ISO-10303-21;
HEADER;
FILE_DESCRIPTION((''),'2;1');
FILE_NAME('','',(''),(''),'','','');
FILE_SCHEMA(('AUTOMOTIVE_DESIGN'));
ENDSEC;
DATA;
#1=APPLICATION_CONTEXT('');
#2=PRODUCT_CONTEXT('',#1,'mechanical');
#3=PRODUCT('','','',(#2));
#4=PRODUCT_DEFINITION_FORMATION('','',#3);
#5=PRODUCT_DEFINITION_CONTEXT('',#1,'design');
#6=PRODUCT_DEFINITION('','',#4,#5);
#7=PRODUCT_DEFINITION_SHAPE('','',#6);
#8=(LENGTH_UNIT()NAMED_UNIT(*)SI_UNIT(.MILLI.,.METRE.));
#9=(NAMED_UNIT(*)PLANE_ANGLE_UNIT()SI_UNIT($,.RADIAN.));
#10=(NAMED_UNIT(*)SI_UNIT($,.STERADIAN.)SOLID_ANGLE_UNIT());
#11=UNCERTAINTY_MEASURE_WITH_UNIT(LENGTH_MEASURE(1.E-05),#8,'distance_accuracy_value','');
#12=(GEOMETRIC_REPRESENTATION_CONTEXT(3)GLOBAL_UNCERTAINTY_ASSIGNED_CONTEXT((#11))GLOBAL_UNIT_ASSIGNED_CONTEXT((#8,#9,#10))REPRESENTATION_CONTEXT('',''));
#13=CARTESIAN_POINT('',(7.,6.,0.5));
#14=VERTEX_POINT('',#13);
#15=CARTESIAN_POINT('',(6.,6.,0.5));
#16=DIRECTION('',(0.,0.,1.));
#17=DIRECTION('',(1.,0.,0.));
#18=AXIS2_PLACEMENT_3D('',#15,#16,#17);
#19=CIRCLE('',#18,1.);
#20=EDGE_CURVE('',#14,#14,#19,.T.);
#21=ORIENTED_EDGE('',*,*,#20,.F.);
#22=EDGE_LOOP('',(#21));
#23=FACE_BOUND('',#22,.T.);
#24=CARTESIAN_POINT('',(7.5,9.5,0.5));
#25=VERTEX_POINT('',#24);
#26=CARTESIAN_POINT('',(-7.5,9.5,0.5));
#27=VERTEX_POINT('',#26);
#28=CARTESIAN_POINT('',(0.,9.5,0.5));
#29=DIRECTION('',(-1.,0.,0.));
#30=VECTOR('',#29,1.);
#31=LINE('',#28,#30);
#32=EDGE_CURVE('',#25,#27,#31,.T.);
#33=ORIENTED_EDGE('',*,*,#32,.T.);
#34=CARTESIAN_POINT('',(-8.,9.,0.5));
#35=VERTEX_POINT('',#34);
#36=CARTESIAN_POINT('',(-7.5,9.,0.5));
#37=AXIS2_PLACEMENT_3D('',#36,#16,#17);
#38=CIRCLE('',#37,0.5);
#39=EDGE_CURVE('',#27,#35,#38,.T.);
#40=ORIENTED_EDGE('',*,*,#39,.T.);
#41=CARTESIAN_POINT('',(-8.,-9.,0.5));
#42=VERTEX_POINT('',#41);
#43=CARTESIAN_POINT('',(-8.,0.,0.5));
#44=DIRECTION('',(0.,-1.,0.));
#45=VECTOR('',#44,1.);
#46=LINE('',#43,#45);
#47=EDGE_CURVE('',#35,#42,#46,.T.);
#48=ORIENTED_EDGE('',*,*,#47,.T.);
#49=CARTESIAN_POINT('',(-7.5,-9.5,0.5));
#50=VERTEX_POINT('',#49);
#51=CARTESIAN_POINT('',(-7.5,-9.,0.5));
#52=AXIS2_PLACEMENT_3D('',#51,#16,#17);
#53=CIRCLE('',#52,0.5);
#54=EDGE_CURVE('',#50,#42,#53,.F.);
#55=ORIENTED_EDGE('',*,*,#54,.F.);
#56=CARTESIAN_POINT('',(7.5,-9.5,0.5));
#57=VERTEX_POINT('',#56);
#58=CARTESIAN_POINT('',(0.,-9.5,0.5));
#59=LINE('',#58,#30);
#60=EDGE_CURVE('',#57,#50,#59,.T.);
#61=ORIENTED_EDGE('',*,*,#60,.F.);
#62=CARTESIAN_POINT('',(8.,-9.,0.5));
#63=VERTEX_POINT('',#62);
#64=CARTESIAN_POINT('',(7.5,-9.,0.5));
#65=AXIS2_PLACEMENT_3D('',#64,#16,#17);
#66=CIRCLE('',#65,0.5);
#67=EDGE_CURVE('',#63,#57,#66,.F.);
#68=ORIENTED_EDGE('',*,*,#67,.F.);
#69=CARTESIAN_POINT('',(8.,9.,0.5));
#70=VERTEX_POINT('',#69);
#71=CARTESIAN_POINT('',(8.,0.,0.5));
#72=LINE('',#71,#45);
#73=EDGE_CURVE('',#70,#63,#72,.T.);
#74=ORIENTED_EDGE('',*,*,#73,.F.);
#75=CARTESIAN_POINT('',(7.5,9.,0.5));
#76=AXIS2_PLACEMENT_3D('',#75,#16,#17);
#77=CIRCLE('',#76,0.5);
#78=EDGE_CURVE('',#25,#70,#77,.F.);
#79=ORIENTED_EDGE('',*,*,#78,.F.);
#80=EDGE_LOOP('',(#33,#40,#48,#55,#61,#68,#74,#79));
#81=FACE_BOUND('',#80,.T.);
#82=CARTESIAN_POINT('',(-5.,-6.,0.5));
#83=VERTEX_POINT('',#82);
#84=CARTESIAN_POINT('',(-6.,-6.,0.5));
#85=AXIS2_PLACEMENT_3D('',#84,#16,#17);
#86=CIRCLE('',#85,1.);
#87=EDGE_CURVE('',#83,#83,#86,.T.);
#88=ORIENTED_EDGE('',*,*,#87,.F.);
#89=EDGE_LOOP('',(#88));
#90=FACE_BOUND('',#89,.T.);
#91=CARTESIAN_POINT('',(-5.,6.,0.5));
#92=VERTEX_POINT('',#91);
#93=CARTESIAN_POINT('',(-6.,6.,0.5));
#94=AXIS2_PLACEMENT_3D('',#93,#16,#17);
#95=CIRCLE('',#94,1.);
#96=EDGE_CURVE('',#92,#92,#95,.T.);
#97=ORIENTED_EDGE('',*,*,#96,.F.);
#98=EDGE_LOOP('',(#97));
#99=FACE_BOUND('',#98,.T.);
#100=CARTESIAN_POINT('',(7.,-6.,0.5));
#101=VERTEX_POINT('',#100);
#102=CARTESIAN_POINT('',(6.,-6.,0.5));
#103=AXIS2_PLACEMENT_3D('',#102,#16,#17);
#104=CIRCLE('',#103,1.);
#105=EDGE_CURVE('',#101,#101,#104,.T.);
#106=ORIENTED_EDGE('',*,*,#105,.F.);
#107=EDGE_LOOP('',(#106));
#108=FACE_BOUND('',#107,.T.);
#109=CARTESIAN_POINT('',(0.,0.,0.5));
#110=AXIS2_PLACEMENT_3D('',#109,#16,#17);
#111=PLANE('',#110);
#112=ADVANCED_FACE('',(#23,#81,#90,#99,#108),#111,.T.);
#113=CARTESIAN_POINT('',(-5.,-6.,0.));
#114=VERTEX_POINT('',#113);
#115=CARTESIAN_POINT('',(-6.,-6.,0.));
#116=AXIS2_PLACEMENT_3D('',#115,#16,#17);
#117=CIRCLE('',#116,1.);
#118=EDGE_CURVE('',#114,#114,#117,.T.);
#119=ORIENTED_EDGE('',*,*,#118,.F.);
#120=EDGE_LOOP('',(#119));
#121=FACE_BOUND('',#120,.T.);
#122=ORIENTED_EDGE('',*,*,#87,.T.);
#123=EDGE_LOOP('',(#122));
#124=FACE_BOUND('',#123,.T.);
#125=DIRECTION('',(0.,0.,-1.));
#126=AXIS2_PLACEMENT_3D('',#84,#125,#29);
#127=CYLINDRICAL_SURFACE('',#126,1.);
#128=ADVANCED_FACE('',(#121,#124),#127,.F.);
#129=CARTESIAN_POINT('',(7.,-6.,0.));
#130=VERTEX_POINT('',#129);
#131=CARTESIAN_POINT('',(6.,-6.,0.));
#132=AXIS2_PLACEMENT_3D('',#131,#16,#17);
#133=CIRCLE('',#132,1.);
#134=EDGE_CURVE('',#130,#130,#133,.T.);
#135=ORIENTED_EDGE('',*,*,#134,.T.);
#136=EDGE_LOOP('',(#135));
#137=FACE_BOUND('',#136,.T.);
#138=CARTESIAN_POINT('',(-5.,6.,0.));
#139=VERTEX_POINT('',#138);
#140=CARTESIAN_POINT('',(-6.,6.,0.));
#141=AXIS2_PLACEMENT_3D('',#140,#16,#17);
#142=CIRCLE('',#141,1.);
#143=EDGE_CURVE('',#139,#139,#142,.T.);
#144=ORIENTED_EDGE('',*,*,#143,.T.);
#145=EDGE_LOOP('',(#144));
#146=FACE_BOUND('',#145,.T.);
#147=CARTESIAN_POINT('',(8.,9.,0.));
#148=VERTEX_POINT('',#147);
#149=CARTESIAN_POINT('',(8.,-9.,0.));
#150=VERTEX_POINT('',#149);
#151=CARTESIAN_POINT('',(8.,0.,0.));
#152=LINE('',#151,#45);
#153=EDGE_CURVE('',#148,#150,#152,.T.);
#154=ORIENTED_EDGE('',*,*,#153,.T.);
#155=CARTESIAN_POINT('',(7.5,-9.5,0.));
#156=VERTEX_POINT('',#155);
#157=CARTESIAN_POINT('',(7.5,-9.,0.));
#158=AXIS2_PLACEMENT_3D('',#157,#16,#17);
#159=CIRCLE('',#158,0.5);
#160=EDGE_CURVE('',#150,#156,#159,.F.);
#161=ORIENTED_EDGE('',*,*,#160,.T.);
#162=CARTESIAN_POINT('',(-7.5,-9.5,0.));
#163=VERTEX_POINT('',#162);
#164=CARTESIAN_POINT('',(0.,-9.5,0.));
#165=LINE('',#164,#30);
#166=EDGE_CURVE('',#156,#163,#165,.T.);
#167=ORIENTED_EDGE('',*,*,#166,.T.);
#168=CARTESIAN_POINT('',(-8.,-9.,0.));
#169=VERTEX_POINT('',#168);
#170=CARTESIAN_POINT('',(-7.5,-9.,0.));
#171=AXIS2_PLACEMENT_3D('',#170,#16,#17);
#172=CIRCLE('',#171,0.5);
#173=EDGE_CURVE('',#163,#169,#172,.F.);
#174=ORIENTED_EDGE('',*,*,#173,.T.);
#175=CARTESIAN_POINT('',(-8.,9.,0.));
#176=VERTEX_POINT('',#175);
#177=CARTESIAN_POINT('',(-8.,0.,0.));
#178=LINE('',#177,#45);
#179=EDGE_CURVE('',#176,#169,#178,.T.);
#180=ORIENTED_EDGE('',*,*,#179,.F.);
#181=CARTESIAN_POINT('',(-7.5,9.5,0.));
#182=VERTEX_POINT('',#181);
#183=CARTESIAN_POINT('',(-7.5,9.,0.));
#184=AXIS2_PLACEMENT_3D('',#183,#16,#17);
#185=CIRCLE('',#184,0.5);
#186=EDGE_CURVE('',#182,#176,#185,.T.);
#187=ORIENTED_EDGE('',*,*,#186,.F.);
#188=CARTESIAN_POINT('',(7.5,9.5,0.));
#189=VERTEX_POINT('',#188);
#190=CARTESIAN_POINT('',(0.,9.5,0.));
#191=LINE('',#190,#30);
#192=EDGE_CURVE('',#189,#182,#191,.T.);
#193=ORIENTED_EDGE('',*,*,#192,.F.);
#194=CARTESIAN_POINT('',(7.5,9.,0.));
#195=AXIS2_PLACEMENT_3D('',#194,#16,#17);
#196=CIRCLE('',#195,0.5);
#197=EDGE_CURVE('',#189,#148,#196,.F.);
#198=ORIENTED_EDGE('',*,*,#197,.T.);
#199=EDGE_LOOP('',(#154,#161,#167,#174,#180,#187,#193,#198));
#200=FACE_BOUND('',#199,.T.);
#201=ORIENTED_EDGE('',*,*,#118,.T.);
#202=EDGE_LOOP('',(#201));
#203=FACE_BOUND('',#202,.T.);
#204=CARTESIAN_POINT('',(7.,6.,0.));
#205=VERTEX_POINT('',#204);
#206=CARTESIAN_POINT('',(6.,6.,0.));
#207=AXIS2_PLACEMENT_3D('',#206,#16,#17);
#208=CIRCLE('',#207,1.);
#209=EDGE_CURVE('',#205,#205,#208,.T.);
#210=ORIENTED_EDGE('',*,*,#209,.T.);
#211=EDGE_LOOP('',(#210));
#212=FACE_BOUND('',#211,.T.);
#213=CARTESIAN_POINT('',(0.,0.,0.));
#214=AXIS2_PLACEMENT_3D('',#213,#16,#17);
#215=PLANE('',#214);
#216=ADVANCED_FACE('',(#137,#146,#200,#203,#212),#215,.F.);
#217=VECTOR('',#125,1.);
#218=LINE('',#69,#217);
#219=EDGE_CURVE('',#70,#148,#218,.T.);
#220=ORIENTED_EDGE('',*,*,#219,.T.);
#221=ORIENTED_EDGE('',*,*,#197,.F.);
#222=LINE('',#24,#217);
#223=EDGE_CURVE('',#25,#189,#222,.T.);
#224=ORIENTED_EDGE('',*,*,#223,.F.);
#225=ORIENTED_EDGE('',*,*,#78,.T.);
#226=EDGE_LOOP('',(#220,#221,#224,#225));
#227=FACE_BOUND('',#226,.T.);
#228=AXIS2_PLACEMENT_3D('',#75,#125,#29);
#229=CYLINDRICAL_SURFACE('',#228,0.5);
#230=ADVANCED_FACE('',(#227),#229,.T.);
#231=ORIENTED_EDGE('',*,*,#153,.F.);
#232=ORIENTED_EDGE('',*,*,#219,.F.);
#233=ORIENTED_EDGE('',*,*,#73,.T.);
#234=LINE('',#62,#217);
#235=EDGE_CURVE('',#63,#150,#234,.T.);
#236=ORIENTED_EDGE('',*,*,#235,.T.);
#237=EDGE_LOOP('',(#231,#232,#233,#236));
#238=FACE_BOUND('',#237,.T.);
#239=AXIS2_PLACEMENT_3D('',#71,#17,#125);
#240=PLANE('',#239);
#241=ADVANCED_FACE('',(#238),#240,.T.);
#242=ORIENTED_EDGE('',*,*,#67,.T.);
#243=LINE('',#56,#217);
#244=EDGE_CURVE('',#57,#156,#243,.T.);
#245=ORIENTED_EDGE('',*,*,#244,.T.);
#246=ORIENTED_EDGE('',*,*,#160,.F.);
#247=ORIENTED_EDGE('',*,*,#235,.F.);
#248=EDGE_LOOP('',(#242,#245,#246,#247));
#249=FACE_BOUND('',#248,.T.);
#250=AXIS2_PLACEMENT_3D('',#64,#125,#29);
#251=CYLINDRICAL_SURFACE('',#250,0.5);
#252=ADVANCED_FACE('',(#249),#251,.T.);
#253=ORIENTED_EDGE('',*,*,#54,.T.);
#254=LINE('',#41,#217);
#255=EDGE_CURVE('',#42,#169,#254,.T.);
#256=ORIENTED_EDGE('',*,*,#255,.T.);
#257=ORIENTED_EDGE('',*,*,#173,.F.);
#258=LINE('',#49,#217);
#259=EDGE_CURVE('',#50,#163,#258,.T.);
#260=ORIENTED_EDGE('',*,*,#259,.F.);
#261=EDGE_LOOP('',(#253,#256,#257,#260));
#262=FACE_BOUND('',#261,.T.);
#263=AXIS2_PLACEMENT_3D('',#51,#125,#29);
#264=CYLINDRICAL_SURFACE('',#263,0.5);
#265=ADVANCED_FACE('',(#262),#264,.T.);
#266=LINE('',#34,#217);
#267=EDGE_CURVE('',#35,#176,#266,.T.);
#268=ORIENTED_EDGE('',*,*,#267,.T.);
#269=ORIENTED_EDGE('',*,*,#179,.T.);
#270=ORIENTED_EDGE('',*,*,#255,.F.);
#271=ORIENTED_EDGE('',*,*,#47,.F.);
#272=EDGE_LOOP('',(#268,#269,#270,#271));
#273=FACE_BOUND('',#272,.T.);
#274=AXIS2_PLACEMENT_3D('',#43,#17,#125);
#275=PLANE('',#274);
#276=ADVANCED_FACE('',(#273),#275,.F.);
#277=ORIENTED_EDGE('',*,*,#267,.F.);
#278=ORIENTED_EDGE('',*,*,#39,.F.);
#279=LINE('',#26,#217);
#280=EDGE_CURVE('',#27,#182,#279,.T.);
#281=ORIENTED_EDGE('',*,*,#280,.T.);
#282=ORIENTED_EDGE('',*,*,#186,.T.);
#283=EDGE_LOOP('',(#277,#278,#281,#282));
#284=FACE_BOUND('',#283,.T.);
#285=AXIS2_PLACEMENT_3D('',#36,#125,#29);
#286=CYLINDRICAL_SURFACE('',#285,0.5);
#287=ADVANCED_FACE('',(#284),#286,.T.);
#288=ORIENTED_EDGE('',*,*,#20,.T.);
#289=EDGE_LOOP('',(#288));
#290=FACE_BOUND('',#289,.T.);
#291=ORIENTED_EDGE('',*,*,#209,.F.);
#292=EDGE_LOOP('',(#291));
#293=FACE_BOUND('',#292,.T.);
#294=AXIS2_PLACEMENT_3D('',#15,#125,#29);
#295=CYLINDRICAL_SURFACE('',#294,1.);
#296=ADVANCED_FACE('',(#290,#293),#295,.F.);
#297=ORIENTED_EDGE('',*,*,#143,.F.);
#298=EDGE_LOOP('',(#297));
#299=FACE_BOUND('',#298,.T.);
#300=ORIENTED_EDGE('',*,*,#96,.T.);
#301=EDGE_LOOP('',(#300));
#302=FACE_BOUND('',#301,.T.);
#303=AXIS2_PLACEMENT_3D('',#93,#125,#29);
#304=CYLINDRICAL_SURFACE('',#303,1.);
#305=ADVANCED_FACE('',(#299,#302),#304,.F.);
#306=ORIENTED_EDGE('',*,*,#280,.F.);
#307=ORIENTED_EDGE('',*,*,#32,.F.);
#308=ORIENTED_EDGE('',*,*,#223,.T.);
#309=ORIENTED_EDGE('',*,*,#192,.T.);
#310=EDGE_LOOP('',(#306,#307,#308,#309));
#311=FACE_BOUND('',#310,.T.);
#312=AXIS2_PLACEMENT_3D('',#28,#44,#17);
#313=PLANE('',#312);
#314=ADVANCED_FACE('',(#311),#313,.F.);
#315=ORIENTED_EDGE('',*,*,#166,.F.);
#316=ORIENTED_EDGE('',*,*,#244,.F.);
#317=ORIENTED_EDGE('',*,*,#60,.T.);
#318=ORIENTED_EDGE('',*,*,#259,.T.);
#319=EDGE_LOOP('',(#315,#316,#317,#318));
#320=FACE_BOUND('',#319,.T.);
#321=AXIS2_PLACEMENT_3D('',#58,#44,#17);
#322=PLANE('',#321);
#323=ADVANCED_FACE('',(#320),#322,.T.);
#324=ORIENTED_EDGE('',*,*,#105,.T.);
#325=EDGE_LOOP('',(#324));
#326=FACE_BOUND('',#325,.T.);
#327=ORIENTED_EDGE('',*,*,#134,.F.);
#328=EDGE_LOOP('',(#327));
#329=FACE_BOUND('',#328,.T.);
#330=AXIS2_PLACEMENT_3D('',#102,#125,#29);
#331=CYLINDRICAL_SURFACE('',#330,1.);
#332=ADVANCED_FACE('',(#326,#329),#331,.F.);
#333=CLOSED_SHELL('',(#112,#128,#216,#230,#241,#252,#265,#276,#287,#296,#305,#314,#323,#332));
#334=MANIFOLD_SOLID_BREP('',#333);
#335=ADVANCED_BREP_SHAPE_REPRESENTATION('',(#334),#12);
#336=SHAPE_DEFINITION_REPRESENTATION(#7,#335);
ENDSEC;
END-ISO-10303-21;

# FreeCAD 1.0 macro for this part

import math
import FreeCAD as App
import Part
import Sketcher

V = App.Vector
Q = App.Units.Quantity

doc = App.newDocument("Part")
params = doc.addObject("Spreadsheet::Sheet", "Params")
for row, (alias, value) in enumerate([
    ("sketch1_diameter", "2 mm"),
    ("sketch1_radius", "0.5 mm"),
    ("sketch1_width", "15 mm"),
    ("sketch1_height", "18 mm"),
    ("pad1_length", "0.5 mm"),
], start=1):
    params.set(f"A{row}", alias)
    params.set(f"B{row}", "=" + value)
    params.setAlias(f"B{row}", alias)

body = doc.addObject("PartDesign::Body", "Body")

# Sketch on XY plane
sketch1 = doc.addObject("Sketcher::SketchObject", "Sketch")
body.addObject(sketch1)
sketch1.AttachmentSupport = (doc.XY_Plane, [""])
sketch1.MapMode = "FlatFace"
sketch1.addGeometry([
    Part.LineSegment(V(7.5, 9.5, 0), V(-7.5, 9.5, 0)),  # 0
    Part.ArcOfCircle(Part.Circle(V(-7.5, 9, 0), V(0, 0, 1), 0.5), math.radians(90), math.radians(180)),  # 1
    Part.LineSegment(V(-8, 9, 0), V(-8, -9, 0)),  # 2
    Part.ArcOfCircle(Part.Circle(V(-7.5, -9, 0), V(0, 0, 1), 0.5), math.radians(180), math.radians(270)),  # 3
    Part.LineSegment(V(-7.5, -9.5, 0), V(7.5, -9.5, 0)),  # 4
    Part.ArcOfCircle(Part.Circle(V(7.5, -9, 0), V(0, 0, 1), 0.5), math.radians(-90), math.radians(0)),  # 5
    Part.LineSegment(V(8, -9, 0), V(8, 9, 0)),  # 6
    Part.ArcOfCircle(Part.Circle(V(7.5, 9, 0), V(0, 0, 1), 0.5), math.radians(0), math.radians(90)),  # 7
    Part.Circle(V(-6, -6, 0), V(0, 0, 1), 1),  # 8
    Part.Circle(V(6, -6, 0), V(0, 0, 1), 1),  # 9
    Part.Circle(V(-6, 6, 0), V(0, 0, 1), 1),  # 10
    Part.Circle(V(6, 6, 0), V(0, 0, 1), 1),  # 11
], False)
sketch1.addConstraint([
    Sketcher.Constraint("Tangent", 0, 2, 1, 1),
    Sketcher.Constraint("Tangent", 1, 2, 2, 1),
    Sketcher.Constraint("Tangent", 2, 2, 3, 1),
    Sketcher.Constraint("Tangent", 3, 2, 4, 1),
    Sketcher.Constraint("Tangent", 4, 2, 5, 1),
    Sketcher.Constraint("Tangent", 5, 2, 6, 1),
    Sketcher.Constraint("Tangent", 6, 2, 7, 1),
    Sketcher.Constraint("Tangent", 7, 2, 0, 1),
    Sketcher.Constraint("Horizontal", 0),
    Sketcher.Constraint("Vertical", 2),
    Sketcher.Constraint("Horizontal", 4),
    Sketcher.Constraint("Vertical", 6),
    Sketcher.Constraint("Equal", 1, 3),
    Sketcher.Constraint("Equal", 3, 5),
    Sketcher.Constraint("Equal", 5, 7),
    Sketcher.Constraint("Equal", 8, 9),
    Sketcher.Constraint("Equal", 9, 10),
    Sketcher.Constraint("Equal", 10, 11),
    Sketcher.Constraint("Symmetric", 1, 3, 5, 3, -1, 1),
    Sketcher.Constraint("Symmetric", 9, 3, 10, 3, -1, 1),
    Sketcher.Constraint("Symmetric", 8, 3, 11, 3, -1, 1),
    Sketcher.Constraint("Symmetric", 8, 3, 9, 3, -2),
    Sketcher.Constraint("Diameter", 8, Q("2 mm")),
    Sketcher.Constraint("Radius", 1, Q("0.5 mm")),
    Sketcher.Constraint("DistanceX", 0, 2, 0, 1, Q("15 mm")),
    Sketcher.Constraint("DistanceY", 2, 2, 2, 1, Q("18 mm")),
    Sketcher.Constraint("DistanceX", 8, 3, -1, 1, Q("6 mm")),
    Sketcher.Constraint("DistanceY", 8, 3, -1, 1, Q("6 mm")),
])
sketch1.setExpression("Constraints[22]", "Params.sketch1_diameter")
sketch1.setExpression("Constraints[23]", "Params.sketch1_radius")
sketch1.setExpression("Constraints[24]", "Params.sketch1_width")
sketch1.setExpression("Constraints[25]", "Params.sketch1_height")
pad1 = doc.addObject("PartDesign::Pad", "Pad")
body.addObject(pad1)
pad1.Profile = sketch1
pad1.setExpression("Length", "Params.pad1_length")

doc.recompute()
